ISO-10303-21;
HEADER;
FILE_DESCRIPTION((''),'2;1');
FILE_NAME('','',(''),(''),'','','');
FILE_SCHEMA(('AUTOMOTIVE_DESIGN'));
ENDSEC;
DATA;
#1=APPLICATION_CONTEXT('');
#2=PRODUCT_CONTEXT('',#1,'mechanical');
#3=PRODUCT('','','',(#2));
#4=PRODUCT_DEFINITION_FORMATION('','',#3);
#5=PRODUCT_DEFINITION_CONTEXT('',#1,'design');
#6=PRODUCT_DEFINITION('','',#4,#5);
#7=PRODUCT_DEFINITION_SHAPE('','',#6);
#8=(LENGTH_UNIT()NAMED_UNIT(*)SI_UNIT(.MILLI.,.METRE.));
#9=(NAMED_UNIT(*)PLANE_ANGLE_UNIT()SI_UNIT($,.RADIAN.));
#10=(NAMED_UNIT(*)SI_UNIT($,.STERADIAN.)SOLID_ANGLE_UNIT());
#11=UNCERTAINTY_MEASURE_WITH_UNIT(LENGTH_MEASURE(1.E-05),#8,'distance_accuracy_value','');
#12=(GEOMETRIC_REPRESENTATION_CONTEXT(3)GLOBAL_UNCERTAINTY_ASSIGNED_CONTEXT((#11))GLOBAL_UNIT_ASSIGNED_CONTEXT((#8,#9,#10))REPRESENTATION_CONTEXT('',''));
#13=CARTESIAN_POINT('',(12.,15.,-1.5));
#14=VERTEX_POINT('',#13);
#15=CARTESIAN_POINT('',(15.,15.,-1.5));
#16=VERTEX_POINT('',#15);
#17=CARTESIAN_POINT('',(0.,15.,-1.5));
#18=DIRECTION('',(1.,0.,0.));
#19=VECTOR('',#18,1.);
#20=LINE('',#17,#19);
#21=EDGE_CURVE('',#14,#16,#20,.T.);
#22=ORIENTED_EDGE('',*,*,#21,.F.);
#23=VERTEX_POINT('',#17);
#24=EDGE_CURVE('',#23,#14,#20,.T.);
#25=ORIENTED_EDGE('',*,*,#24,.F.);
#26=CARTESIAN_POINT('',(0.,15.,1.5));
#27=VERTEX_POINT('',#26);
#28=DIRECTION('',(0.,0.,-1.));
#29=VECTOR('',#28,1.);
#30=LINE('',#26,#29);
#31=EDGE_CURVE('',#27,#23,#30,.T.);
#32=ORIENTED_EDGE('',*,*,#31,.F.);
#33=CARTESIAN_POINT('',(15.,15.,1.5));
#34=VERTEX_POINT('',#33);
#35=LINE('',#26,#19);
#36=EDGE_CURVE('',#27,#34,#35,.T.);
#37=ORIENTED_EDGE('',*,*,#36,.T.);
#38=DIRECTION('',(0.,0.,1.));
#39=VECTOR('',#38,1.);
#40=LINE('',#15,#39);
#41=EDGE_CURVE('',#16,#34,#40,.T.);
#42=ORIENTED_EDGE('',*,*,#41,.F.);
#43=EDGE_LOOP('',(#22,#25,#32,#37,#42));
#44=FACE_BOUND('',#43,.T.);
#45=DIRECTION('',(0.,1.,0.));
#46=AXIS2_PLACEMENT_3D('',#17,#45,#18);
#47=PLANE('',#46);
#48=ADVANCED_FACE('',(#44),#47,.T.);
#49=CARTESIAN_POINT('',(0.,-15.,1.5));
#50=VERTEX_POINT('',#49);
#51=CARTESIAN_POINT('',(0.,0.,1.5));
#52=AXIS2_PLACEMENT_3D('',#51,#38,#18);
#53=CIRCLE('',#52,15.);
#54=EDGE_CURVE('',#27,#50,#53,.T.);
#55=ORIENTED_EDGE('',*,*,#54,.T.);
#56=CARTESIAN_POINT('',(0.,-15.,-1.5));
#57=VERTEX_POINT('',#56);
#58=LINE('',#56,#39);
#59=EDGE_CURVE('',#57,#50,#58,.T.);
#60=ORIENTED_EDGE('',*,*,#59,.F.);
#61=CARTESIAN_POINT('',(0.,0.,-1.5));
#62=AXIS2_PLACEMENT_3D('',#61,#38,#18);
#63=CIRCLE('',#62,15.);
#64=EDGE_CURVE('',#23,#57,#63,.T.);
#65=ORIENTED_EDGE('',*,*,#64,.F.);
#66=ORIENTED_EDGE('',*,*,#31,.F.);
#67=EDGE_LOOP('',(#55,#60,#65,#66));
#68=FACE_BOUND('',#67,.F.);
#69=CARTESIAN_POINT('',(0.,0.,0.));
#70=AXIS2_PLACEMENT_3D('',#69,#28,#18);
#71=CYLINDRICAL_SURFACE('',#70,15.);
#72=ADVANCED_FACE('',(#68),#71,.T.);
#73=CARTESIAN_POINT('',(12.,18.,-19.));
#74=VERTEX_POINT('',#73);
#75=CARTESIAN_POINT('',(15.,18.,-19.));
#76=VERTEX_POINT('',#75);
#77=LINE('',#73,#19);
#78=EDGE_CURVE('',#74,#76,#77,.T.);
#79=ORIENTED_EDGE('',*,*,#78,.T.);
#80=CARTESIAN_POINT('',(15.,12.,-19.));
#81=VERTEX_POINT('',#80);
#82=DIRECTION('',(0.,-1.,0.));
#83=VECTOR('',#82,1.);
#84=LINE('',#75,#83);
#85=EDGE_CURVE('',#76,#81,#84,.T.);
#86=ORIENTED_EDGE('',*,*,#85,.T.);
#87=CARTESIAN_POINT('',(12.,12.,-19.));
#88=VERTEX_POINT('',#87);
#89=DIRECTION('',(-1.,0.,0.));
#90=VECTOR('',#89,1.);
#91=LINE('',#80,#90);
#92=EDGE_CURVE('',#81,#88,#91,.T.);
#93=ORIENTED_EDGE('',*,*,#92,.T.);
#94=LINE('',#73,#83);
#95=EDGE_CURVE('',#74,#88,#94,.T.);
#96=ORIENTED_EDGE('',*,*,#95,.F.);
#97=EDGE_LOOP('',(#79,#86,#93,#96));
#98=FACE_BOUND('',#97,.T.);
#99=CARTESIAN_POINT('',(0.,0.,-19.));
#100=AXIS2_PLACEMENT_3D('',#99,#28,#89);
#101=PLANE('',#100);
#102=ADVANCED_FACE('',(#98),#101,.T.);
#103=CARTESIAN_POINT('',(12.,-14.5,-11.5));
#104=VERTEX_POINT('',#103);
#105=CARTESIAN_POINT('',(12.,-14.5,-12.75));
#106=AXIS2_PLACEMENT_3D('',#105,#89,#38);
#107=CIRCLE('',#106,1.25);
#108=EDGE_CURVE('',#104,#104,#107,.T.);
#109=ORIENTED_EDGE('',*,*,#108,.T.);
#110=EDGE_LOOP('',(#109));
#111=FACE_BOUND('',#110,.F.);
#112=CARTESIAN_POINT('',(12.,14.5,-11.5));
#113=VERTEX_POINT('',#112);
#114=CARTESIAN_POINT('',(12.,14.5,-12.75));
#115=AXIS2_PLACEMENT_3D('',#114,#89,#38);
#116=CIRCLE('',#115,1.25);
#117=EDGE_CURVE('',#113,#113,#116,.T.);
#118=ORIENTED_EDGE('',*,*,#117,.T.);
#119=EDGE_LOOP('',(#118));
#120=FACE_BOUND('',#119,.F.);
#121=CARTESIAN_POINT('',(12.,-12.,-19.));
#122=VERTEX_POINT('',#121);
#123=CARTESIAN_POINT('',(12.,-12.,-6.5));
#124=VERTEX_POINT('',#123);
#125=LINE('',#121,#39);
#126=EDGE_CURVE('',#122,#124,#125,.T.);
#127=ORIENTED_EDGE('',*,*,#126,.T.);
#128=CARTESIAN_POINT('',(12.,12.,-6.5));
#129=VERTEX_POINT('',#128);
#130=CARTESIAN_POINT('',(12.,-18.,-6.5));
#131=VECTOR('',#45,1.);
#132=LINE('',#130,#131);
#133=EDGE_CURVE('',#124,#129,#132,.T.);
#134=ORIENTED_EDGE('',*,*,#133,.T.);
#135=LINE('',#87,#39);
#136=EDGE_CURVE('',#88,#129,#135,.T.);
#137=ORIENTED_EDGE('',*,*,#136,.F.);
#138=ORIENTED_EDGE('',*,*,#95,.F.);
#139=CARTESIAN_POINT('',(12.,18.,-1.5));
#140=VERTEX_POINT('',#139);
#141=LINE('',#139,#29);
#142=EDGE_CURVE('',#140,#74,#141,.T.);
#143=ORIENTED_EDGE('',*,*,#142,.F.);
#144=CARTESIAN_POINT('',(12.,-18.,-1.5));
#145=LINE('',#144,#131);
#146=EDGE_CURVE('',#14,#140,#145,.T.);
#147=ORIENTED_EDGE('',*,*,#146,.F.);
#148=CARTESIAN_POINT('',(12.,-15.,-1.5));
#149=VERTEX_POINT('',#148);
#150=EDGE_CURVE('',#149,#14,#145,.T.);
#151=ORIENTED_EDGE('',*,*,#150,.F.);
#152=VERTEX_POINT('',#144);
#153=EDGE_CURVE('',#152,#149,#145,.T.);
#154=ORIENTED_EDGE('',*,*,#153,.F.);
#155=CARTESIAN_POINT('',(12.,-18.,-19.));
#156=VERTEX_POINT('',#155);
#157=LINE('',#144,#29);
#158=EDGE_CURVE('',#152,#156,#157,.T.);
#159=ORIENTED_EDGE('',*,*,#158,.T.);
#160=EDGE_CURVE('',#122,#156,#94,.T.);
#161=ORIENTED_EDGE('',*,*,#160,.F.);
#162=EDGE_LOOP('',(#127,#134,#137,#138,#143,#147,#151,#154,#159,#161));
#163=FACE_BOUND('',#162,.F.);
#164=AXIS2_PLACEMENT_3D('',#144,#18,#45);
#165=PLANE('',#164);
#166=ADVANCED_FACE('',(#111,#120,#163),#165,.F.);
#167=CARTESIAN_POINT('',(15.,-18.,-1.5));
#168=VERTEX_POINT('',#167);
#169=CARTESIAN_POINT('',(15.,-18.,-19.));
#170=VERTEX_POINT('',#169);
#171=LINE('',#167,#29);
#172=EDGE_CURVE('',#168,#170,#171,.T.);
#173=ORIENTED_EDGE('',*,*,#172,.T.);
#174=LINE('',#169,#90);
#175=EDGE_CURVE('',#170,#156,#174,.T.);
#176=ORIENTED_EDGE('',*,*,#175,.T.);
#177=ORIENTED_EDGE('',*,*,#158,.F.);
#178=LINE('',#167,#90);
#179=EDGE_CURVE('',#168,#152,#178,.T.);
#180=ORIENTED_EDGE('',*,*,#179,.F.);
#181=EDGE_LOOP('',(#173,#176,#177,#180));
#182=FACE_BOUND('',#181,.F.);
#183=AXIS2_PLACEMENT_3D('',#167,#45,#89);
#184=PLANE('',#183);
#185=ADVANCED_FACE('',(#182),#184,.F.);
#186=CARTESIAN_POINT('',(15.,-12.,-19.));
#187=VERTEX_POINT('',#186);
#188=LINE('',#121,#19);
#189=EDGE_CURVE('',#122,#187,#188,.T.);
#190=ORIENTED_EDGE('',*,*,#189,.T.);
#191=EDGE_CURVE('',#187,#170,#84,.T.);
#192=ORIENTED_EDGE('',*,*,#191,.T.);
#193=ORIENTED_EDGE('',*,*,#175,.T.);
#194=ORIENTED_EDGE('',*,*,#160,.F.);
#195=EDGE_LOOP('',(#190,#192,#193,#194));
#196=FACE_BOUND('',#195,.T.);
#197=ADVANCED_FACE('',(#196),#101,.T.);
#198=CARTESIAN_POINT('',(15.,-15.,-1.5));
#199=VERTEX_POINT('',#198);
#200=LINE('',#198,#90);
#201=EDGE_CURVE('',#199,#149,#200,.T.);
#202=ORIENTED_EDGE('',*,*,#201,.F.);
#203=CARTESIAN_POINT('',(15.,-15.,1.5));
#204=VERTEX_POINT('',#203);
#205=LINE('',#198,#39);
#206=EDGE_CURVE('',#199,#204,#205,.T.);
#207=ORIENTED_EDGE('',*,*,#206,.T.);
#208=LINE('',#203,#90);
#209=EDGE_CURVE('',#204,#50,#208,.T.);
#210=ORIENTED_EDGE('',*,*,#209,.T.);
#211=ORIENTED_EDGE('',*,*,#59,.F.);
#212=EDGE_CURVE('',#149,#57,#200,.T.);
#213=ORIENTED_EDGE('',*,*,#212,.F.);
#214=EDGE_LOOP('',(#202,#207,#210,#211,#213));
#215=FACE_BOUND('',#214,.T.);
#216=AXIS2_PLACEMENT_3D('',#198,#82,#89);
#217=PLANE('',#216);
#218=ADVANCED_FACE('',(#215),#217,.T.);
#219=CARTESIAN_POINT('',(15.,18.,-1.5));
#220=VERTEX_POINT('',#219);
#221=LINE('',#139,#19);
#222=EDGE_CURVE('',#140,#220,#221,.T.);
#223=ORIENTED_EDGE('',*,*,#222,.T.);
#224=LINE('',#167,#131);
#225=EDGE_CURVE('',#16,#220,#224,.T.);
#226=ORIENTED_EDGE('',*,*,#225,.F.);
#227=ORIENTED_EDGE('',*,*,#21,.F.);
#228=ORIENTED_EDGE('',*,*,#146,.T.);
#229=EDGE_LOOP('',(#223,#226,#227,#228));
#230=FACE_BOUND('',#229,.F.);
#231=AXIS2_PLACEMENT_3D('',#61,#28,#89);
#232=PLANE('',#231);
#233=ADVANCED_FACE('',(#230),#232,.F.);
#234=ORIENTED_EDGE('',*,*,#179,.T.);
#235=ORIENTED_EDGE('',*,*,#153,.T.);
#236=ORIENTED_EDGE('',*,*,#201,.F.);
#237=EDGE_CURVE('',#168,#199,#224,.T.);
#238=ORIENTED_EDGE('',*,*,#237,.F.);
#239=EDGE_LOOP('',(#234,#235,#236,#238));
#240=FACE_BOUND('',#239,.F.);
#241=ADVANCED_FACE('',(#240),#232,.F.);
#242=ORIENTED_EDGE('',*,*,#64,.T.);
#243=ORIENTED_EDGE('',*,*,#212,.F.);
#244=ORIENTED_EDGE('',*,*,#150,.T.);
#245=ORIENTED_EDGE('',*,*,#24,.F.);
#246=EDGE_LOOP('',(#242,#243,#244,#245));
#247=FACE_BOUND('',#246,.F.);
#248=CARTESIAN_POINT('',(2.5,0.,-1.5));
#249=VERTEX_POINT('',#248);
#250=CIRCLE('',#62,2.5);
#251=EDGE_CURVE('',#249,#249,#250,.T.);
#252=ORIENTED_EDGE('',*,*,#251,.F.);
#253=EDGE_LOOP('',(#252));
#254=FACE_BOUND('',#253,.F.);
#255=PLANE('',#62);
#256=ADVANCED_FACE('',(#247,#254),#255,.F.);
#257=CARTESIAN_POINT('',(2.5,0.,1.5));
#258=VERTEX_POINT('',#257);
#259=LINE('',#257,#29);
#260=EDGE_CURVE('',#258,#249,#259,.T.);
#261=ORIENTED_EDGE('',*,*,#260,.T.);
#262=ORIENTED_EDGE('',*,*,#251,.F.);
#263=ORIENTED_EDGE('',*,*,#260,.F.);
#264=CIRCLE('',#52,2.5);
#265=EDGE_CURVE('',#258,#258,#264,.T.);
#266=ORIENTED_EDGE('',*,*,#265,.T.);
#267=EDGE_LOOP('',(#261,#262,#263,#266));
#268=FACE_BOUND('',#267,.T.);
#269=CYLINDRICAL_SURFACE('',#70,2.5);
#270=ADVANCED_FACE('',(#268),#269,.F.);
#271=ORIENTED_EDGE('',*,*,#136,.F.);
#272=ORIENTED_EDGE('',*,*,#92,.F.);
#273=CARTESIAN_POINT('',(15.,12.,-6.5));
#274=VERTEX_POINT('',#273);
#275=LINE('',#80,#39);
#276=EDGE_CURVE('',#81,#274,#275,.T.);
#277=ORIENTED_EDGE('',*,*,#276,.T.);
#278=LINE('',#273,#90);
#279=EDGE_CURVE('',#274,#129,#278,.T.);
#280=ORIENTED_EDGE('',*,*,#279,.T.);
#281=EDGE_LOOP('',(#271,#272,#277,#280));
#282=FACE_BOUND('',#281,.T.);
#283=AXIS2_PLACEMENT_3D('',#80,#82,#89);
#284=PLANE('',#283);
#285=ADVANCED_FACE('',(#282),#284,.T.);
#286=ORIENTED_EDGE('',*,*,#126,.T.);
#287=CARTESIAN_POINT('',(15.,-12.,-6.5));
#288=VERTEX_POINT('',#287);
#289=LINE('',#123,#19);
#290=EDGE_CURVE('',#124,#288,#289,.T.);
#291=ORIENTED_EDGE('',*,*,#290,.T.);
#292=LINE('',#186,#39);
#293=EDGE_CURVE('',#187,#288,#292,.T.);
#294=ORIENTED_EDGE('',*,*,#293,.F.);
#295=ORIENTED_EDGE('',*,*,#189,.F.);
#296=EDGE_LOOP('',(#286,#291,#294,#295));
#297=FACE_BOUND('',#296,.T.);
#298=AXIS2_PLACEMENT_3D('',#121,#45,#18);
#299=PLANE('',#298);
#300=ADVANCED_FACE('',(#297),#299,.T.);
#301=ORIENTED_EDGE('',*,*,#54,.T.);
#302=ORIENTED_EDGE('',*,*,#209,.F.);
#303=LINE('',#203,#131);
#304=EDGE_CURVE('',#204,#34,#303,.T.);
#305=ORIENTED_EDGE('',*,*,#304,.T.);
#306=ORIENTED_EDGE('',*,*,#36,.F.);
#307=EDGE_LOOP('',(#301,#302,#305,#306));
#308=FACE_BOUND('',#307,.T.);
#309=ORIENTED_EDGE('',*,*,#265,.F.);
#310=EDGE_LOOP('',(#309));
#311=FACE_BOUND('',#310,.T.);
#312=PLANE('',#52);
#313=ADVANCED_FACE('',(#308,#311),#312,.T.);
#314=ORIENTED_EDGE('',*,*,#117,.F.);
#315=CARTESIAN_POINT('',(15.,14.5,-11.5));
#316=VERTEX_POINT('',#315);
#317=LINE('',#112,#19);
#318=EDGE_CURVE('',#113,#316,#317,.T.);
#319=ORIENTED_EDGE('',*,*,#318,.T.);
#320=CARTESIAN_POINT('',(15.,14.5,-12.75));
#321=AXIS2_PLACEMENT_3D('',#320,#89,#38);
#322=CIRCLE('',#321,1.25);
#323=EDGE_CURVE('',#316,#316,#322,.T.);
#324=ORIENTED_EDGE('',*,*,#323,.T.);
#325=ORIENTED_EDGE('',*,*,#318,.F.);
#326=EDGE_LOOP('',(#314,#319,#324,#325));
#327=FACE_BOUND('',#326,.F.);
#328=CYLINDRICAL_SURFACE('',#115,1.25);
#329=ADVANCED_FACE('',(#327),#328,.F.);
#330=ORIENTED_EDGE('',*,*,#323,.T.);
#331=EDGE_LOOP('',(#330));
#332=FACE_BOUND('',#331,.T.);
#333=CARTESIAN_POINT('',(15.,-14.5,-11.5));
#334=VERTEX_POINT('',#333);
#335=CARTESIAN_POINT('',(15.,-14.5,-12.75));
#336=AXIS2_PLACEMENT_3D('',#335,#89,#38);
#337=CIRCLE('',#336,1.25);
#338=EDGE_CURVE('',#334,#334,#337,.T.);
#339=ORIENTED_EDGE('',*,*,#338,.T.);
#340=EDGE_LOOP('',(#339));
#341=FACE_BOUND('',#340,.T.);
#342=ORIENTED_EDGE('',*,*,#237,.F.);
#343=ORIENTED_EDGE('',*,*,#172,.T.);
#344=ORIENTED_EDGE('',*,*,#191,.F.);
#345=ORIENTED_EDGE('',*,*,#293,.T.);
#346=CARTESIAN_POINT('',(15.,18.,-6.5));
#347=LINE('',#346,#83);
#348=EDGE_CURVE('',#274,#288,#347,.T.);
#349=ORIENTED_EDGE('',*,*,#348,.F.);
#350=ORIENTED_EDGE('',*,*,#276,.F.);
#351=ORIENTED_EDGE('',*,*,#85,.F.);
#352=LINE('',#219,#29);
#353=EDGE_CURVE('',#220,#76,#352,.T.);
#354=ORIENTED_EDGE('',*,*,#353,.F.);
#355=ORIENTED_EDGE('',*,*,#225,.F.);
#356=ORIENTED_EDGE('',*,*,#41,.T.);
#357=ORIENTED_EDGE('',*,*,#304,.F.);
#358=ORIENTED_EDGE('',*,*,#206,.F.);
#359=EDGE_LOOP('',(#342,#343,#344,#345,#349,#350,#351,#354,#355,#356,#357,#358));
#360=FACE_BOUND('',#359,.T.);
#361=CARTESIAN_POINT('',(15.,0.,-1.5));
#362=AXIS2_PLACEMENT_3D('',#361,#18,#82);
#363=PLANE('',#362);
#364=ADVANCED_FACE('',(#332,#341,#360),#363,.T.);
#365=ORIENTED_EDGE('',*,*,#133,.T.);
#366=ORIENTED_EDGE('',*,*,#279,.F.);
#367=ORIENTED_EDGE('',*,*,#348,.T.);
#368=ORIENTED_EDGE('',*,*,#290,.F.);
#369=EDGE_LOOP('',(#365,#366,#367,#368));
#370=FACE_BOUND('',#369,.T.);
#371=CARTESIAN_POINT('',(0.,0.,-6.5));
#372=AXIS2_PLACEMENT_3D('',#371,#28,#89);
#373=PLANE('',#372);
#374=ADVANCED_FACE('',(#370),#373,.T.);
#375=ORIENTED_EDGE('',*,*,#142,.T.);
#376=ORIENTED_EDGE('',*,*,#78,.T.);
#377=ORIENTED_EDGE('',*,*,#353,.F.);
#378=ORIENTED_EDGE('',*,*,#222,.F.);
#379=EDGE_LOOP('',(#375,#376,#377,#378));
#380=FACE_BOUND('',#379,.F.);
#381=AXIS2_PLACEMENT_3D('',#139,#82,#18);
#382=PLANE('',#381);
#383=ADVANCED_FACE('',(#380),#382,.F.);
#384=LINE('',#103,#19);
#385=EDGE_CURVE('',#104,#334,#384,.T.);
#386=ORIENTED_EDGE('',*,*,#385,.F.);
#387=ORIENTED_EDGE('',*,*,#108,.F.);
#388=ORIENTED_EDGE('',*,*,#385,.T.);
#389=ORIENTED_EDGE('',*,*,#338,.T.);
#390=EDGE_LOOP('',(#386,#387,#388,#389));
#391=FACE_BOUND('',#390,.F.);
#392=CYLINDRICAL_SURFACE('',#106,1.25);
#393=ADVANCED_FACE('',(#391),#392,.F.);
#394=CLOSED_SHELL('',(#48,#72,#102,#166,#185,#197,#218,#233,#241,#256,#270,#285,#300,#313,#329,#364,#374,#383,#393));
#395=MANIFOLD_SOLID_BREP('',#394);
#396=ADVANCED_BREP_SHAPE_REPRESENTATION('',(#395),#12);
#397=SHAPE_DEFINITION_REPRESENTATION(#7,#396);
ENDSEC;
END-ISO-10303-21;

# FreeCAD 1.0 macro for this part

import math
import FreeCAD as App
import Part
import Sketcher
from FreeCAD import Vector

doc = App.newDocument("Part")
params = doc.addObject("Spreadsheet::Sheet", "Params")
for row, (alias, value) in enumerate([
    ("sketch1_diameter", "30 mm"),
    ("sketch1_diameter2", "5 mm"),
    ("pad1_length", "3 mm"),
    ("sketch2_radius", "15 mm"),
    ("pad2_length", "3 mm"),
    ("sketch3_width", "3 mm"),
    ("sketch3_height", "36 mm"),
    ("pad3_length", "17.5 mm"),
    ("sketch4_height", "24 mm"),
    ("sketch4_width", "3 mm"),
    ("pocket1_length", "12.5 mm"),
    ("sketch5_diameter", "2.5 mm"),
    ("pocket2_length", "3 mm"),
], start=1):
    params.set(f"A{row}", alias)
    params.set(f"B{row}", "=" + value)
    params.setAlias(f"B{row}", alias)

body = doc.addObject("PartDesign::Body", "Body")

sketch1 = body.newObject("Sketcher::SketchObject", "Sketch")
sketch1.AttachmentSupport = (doc.getObject("XY_Plane"), [""])
sketch1.MapMode = "FlatFace"
sketch1.addGeometry(Part.Circle(Vector(0, 0, 0), Vector(0, 0, 1), 15), False)
sketch1.addGeometry(Part.Circle(Vector(0, 0, 0), Vector(0, 0, 1), 2.5), False)
sketch1.addConstraint(Sketcher.Constraint("Coincident", 0, 3, -1, 1))
sketch1.addConstraint(Sketcher.Constraint("Coincident", 1, 3, -1, 1))
sketch1.addConstraint(Sketcher.Constraint("Diameter", 0, 30.0))
sketch1.addConstraint(Sketcher.Constraint("Diameter", 1, 5.0))
sketch1.setExpression("Constraints[2]", "Params.sketch1_diameter")
sketch1.setExpression("Constraints[3]", "Params.sketch1_diameter2")
pad1 = body.newObject("PartDesign::Pad", "Pad")
pad1.Profile = sketch1
pad1.setExpression("Length", "Params.pad1_length")
pad1.Midplane = True

sketch2 = body.newObject("Sketcher::SketchObject", "Sketch001")
sketch2.AttachmentSupport = (doc.getObject("XY_Plane"), [""])
sketch2.MapMode = "FlatFace"
sketch2.AttachmentOffset = App.Placement(Vector(0, 0, -1.5), App.Rotation())
sketch2.addGeometry(Part.ArcOfCircle(Part.Circle(Vector(0, 0, 0), Vector(0, 0, 1), 15), math.radians(0), math.radians(90)), False)
sketch2.addGeometry(Part.LineSegment(Vector(0, 15, 0), Vector(15, 15, 0)), False)
sketch2.addGeometry(Part.LineSegment(Vector(15, 15, 0), Vector(15, 0, 0)), False)
sketch2.addGeometry(Part.LineSegment(Vector(15, -15, 0), Vector(0, -15, 0)), False)
sketch2.addGeometry(Part.ArcOfCircle(Part.Circle(Vector(0, 0, 0), Vector(0, 0, 1), 15), math.radians(-90), math.radians(0)), False)
sketch2.addGeometry(Part.LineSegment(Vector(15, 0, 0), Vector(15, -15, 0)), False)
sketch2.addConstraint(Sketcher.Constraint("Tangent", 0, 2, 1, 1))
sketch2.addConstraint(Sketcher.Constraint("Coincident", 1, 2, 2, 1))
sketch2.addConstraint(Sketcher.Constraint("Tangent", 2, 2, 0, 1))
sketch2.addConstraint(Sketcher.Constraint("Tangent", 3, 2, 4, 1))
sketch2.addConstraint(Sketcher.Constraint("Tangent", 4, 2, 5, 1))
sketch2.addConstraint(Sketcher.Constraint("Coincident", 5, 2, 3, 1))
sketch2.addConstraint(Sketcher.Constraint("Horizontal", 1))
sketch2.addConstraint(Sketcher.Constraint("Vertical", 2))
sketch2.addConstraint(Sketcher.Constraint("Horizontal", 3))
sketch2.addConstraint(Sketcher.Constraint("Vertical", 5))
sketch2.addConstraint(Sketcher.Constraint("Coincident", 0, 3, -1, 1))
sketch2.addConstraint(Sketcher.Constraint("Coincident", 4, 3, -1, 1))
sketch2.addConstraint(Sketcher.Constraint("Equal", 0, 4))
sketch2.addConstraint(Sketcher.Constraint("Radius", 0, 15.0))
sketch2.setExpression("Constraints[13]", "Params.sketch2_radius")
pad2 = body.newObject("PartDesign::Pad", "Pad001")
pad2.Profile = sketch2
pad2.setExpression("Length", "Params.pad2_length")

sketch3 = body.newObject("Sketcher::SketchObject", "Sketch002")
sketch3.AttachmentSupport = (doc.getObject("XY_Plane"), [""])
sketch3.MapMode = "FlatFace"
sketch3.AttachmentOffset = App.Placement(Vector(0, 0, -1.5), App.Rotation())
sketch3.addGeometry(Part.LineSegment(Vector(12, -18, 0), Vector(12, 18, 0)), False)
sketch3.addGeometry(Part.LineSegment(Vector(12, 18, 0), Vector(15, 18, 0)), False)
sketch3.addGeometry(Part.LineSegment(Vector(15, 18, 0), Vector(15, -18, 0)), False)
sketch3.addGeometry(Part.LineSegment(Vector(15, -18, 0), Vector(12, -18, 0)), False)
sketch3.addConstraint(Sketcher.Constraint("Coincident", 0, 2, 1, 1))
sketch3.addConstraint(Sketcher.Constraint("Coincident", 1, 2, 2, 1))
sketch3.addConstraint(Sketcher.Constraint("Coincident", 2, 2, 3, 1))
sketch3.addConstraint(Sketcher.Constraint("Coincident", 3, 2, 0, 1))
sketch3.addConstraint(Sketcher.Constraint("Vertical", 0))
sketch3.addConstraint(Sketcher.Constraint("Horizontal", 1))
sketch3.addConstraint(Sketcher.Constraint("Vertical", 2))
sketch3.addConstraint(Sketcher.Constraint("Horizontal", 3))
sketch3.addConstraint(Sketcher.Constraint("DistanceX", 1, 1, 1, 2, 3.0))
sketch3.addConstraint(Sketcher.Constraint("DistanceY", 0, 1, 0, 2, 36.0))
sketch3.addConstraint(Sketcher.Constraint("DistanceX", -1, 1, 0, 2, 12.0))
sketch3.addConstraint(Sketcher.Constraint("DistanceY", -1, 1, 0, 2, 18.0))
sketch3.setExpression("Constraints[8]", "Params.sketch3_width")
sketch3.setExpression("Constraints[9]", "Params.sketch3_height")
pad3 = body.newObject("PartDesign::Pad", "Pad002")
pad3.Profile = sketch3
pad3.setExpression("Length", "Params.pad3_length")
pad3.Reversed = True

sketch4 = body.newObject("Sketcher::SketchObject", "Sketch003")
sketch4.AttachmentSupport = (doc.getObject("XY_Plane"), [""])
sketch4.MapMode = "FlatFace"
sketch4.AttachmentOffset = App.Placement(Vector(0, 0, -19), App.Rotation())
sketch4.addGeometry(Part.LineSegment(Vector(15, -12, 0), Vector(12, -12, 0)), False)
sketch4.addGeometry(Part.LineSegment(Vector(12, -12, 0), Vector(12, 12, 0)), False)
sketch4.addGeometry(Part.LineSegment(Vector(12, 12, 0), Vector(15, 12, 0)), False)
sketch4.addGeometry(Part.LineSegment(Vector(15, 12, 0), Vector(15, -12, 0)), False)
sketch4.addConstraint(Sketcher.Constraint("Coincident", 0, 2, 1, 1))
sketch4.addConstraint(Sketcher.Constraint("Coincident", 1, 2, 2, 1))
sketch4.addConstraint(Sketcher.Constraint("Coincident", 2, 2, 3, 1))
sketch4.addConstraint(Sketcher.Constraint("Coincident", 3, 2, 0, 1))
sketch4.addConstraint(Sketcher.Constraint("Horizontal", 0))
sketch4.addConstraint(Sketcher.Constraint("Vertical", 1))
sketch4.addConstraint(Sketcher.Constraint("Horizontal", 2))
sketch4.addConstraint(Sketcher.Constraint("Vertical", 3))
sketch4.addConstraint(Sketcher.Constraint("DistanceY", 1, 1, 1, 2, 24.0))
sketch4.addConstraint(Sketcher.Constraint("DistanceX", 0, 2, 0, 1, 3.0))
sketch4.addConstraint(Sketcher.Constraint("DistanceX", -1, 1, 0, 2, 12.0))
sketch4.addConstraint(Sketcher.Constraint("DistanceY", 0, 2, -1, 1, 12.0))
sketch4.setExpression("Constraints[8]", "Params.sketch4_height")
sketch4.setExpression("Constraints[9]", "Params.sketch4_width")
pocket1 = body.newObject("PartDesign::Pocket", "Pocket")
pocket1.Profile = sketch4
pocket1.setExpression("Length", "Params.pocket1_length")
pocket1.Reversed = True

sketch5 = body.newObject("Sketcher::SketchObject", "Sketch004")
sketch5.AttachmentSupport = (doc.getObject("YZ_Plane"), [""])
sketch5.MapMode = "FlatFace"
sketch5.AttachmentOffset = App.Placement(Vector(0, 0, 12), App.Rotation())
sketch5.addGeometry(Part.Circle(Vector(14.5, -12.75, 0), Vector(0, 0, 1), 1.25), False)
sketch5.addGeometry(Part.Circle(Vector(-14.5, -12.75, 0), Vector(0, 0, 1), 1.25), False)
sketch5.addConstraint(Sketcher.Constraint("Equal", 0, 1))
sketch5.addConstraint(Sketcher.Constraint("Symmetric", 0, 3, 1, 3, -2))
sketch5.addConstraint(Sketcher.Constraint("Diameter", 0, 2.5))
sketch5.addConstraint(Sketcher.Constraint("DistanceX", 1, 3, 0, 3, 29.0))
sketch5.addConstraint(Sketcher.Constraint("DistanceY", 0, 3, -1, 1, 12.75))
sketch5.setExpression("Constraints[2]", "Params.sketch5_diameter")
pocket2 = body.newObject("PartDesign::Pocket", "Pocket001")
pocket2.Profile = sketch5
pocket2.setExpression("Length", "Params.pocket2_length")
pocket2.Reversed = True

doc.recompute()
